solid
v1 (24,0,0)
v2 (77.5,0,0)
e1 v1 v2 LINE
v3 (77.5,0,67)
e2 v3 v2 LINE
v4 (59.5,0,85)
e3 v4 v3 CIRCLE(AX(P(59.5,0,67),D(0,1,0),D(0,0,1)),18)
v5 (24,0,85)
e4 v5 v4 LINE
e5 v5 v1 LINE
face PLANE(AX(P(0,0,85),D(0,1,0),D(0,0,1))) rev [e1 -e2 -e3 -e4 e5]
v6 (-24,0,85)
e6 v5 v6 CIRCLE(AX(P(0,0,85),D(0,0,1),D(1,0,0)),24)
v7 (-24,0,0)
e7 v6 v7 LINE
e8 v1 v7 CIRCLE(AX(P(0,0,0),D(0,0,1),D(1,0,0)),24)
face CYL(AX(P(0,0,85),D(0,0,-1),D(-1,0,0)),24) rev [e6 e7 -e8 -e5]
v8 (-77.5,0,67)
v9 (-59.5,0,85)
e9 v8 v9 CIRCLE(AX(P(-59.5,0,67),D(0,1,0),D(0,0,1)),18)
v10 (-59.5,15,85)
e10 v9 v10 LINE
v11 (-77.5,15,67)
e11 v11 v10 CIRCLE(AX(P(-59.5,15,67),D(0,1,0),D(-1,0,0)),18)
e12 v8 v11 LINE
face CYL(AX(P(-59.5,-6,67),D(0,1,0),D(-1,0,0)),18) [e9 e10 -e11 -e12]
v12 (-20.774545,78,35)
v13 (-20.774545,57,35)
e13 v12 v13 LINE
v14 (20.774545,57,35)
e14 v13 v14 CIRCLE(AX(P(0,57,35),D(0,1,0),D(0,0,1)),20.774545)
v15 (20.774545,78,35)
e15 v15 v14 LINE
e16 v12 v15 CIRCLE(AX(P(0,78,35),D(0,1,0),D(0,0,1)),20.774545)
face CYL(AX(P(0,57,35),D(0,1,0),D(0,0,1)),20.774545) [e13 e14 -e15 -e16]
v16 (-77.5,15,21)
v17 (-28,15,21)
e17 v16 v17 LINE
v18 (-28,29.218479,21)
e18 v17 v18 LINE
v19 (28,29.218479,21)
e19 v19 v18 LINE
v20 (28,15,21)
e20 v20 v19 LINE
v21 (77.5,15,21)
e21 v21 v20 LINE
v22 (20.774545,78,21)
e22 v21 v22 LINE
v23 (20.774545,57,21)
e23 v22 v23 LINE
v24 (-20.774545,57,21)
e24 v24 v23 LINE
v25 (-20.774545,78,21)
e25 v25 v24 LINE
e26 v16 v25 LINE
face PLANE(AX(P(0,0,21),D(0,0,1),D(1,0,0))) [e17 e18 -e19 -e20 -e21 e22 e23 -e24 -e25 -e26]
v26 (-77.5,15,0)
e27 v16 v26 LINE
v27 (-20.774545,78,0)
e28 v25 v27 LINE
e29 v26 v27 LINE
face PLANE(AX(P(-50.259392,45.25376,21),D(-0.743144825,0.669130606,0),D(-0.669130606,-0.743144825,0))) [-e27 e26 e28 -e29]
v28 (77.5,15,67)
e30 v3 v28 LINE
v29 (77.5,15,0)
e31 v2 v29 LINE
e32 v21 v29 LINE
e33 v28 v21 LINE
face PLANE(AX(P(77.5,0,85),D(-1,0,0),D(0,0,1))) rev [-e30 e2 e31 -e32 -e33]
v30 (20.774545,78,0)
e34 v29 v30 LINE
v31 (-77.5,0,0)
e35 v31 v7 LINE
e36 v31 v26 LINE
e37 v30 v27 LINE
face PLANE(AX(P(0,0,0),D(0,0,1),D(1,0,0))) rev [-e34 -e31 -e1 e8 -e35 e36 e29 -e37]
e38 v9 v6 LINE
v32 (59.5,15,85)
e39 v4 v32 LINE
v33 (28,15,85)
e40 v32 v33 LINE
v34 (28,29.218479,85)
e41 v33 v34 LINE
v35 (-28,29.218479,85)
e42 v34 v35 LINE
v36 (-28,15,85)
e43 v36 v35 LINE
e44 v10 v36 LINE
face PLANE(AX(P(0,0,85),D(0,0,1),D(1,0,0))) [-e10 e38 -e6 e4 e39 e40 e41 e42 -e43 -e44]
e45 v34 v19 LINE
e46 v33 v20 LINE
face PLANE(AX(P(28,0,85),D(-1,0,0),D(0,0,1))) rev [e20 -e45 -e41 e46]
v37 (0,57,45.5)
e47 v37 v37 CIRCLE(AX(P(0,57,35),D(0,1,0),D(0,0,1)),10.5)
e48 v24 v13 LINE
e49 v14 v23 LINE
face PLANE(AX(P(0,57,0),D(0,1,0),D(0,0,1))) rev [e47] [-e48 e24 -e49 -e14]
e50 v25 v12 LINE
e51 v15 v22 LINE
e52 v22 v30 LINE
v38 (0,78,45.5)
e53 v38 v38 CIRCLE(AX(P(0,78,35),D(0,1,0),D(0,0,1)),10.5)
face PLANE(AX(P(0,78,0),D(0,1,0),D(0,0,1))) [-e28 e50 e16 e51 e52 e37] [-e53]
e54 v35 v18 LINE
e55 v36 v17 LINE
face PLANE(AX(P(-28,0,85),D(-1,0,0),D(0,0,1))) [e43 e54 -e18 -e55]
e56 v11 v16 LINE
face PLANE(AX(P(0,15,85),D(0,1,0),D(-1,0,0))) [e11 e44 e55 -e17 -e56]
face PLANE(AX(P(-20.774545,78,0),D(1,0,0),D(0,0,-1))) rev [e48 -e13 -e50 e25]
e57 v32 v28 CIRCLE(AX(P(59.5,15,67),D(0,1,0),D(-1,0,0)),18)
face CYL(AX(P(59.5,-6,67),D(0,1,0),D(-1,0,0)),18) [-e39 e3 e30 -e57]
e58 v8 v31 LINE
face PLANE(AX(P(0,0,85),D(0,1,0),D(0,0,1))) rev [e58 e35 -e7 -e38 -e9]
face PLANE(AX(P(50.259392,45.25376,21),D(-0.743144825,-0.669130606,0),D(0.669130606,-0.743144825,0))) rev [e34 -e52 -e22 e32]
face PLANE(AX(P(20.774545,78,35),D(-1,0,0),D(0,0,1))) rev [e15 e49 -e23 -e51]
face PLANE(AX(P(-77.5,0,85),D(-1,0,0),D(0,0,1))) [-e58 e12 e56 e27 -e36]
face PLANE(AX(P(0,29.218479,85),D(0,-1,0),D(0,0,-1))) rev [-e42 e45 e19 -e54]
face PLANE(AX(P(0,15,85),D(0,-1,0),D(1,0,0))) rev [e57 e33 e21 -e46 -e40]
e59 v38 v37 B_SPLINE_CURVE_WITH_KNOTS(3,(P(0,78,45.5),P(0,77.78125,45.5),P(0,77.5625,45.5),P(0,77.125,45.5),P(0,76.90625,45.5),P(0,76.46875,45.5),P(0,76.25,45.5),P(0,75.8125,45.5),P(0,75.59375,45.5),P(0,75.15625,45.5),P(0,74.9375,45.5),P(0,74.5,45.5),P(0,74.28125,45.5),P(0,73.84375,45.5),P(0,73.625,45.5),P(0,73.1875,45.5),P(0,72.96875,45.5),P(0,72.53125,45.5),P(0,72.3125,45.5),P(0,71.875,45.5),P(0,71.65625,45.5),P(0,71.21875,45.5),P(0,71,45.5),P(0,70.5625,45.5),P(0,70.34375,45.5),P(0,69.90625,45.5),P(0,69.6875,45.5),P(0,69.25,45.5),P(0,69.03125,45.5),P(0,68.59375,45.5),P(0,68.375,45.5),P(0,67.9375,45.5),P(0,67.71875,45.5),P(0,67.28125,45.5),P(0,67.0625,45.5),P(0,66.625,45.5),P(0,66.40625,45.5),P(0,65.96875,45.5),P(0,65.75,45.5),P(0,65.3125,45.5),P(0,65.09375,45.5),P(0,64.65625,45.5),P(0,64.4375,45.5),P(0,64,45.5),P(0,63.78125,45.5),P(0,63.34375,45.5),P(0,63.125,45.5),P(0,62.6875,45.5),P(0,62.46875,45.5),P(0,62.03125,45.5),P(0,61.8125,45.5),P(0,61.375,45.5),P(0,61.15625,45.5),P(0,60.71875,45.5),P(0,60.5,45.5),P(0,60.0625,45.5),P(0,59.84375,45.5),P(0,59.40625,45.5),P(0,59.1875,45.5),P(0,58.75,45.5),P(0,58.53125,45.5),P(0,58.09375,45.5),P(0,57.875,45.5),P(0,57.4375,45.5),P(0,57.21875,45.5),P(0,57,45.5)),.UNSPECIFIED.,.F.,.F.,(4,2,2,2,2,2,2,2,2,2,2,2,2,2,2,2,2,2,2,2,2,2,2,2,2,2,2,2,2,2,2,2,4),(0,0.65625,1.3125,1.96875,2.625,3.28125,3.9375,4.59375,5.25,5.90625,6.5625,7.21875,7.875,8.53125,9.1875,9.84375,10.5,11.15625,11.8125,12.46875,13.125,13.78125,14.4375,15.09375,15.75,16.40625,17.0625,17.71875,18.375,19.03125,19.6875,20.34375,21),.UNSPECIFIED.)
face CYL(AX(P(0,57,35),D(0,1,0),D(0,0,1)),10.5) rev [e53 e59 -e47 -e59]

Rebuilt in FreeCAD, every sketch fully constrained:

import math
import FreeCAD as App
import Part
import Sketcher
Q = App.Units.Quantity

doc = App.newDocument("Part")
body = doc.addObject("PartDesign::Body", "Body")

# Sketch on XY plane
sketch1 = body.newObject("Sketcher::SketchObject", "Sketch")
sketch1.AttachmentSupport = (doc.getObject("XY_Plane"), [""])
sketch1.MapMode = "FlatFace"
sketch1.addGeometry([
    Part.ArcOfCircle(Part.Circle(App.Vector(0, 0, 0), App.Vector(0, 0, 1), 24), math.radians(90), math.radians(180)),  # 0
    Part.ArcOfCircle(Part.Circle(App.Vector(0, 0, 0), App.Vector(0, 0, 1), 24), math.radians(0), math.radians(90)),  # 1
    Part.LineSegment(App.Vector(24, 0, 0), App.Vector(78, 0, 0)),  # 2
    Part.LineSegment(App.Vector(78, 0, 0), App.Vector(78, 15, 0)),  # 3
    Part.LineSegment(App.Vector(78, 15, 0), App.Vector(28, 15, 0)),  # 4
    Part.LineSegment(App.Vector(28, 15, 0), App.Vector(28, 29, 0)),  # 5
    Part.LineSegment(App.Vector(28, 29, 0), App.Vector(-28, 29, 0)),  # 6
    Part.LineSegment(App.Vector(-28, 29, 0), App.Vector(-28, 15, 0)),  # 7
    Part.LineSegment(App.Vector(-28, 15, 0), App.Vector(-78, 15, 0)),  # 8
    Part.LineSegment(App.Vector(-78, 15, 0), App.Vector(-78, 0, 0)),  # 9
    Part.LineSegment(App.Vector(-78, 0, 0), App.Vector(-24, 0, 0)),  # 10
], False)
sketch1.addConstraint([
    Sketcher.Constraint("Tangent", 0, 1, 1, 2),
    Sketcher.Constraint("Coincident", 1, 1, 2, 1),
    Sketcher.Constraint("Coincident", 2, 2, 3, 1),
    Sketcher.Constraint("Coincident", 3, 2, 4, 1),
    Sketcher.Constraint("Coincident", 4, 2, 5, 1),
    Sketcher.Constraint("Coincident", 5, 2, 6, 1),
    Sketcher.Constraint("Coincident", 6, 2, 7, 1),
    Sketcher.Constraint("Coincident", 7, 2, 8, 1),
    Sketcher.Constraint("Coincident", 8, 2, 9, 1),
    Sketcher.Constraint("Coincident", 9, 2, 10, 1),
    Sketcher.Constraint("Coincident", 10, 2, 0, 2),
    Sketcher.Constraint("Horizontal", 2),
    Sketcher.Constraint("Vertical", 3),
    Sketcher.Constraint("Horizontal", 4),
    Sketcher.Constraint("Vertical", 5),
    Sketcher.Constraint("Horizontal", 6),
    Sketcher.Constraint("Vertical", 7),
    Sketcher.Constraint("Horizontal", 8),
    Sketcher.Constraint("Vertical", 9),
    Sketcher.Constraint("Horizontal", 10),
    Sketcher.Constraint("Coincident", 0, 3, -1, 1),
    Sketcher.Constraint("Equal", 0, 1),
    Sketcher.Constraint("Symmetric", 2, 2, 9, 2, -1, 1),
    Sketcher.Constraint("Symmetric", 4, 2, 7, 2, -2),
    Sketcher.Constraint("PointOnObject", 0, 1, -2),
    Sketcher.Constraint("PointOnObject", 1, 1, -1),
    Sketcher.Constraint("Radius", 0, 24.0),
    Sketcher.Constraint("DistanceX", 6, 2, 6, 1, 56.0),
    Sketcher.Constraint("DistanceY", 3, 1, 3, 2, 15.0),
    Sketcher.Constraint("DistanceX", 2, 1, 2, 2, 53.5),
    Sketcher.Constraint("DistanceY", 5, 1, 5, 2, 14.218479),
])
pad1 = body.newObject("PartDesign::Pad", "Pad")
pad1.Profile = sketch1
pad1.Length = 85

# Sketch on XY plane
sketch2 = body.newObject("Sketcher::SketchObject", "Sketch001")
sketch2.AttachmentSupport = (doc.getObject("XY_Plane"), [""])
sketch2.MapMode = "FlatFace"
sketch2.addGeometry([
    Part.LineSegment(App.Vector(-28, 29, 0), App.Vector(28, 29, 0)),  # 0
    Part.LineSegment(App.Vector(28, 29, 0), App.Vector(28, 15, 0)),  # 1
    Part.LineSegment(App.Vector(28, 15, 0), App.Vector(78, 15, 0)),  # 2
    Part.LineSegment(App.Vector(78, 15, 0), App.Vector(21, 78, 0)),  # 3
    Part.LineSegment(App.Vector(21, 78, 0), App.Vector(21, 57, 0)),  # 4
    Part.LineSegment(App.Vector(21, 57, 0), App.Vector(-21, 57, 0)),  # 5
    Part.LineSegment(App.Vector(-21, 57, 0), App.Vector(-21, 78, 0)),  # 6
    Part.LineSegment(App.Vector(-21, 78, 0), App.Vector(-78, 15, 0)),  # 7
    Part.LineSegment(App.Vector(-78, 15, 0), App.Vector(-28, 15, 0)),  # 8
    Part.LineSegment(App.Vector(-28, 15, 0), App.Vector(-28, 29, 0)),  # 9
], False)
sketch2.addConstraint([
    Sketcher.Constraint("Coincident", 0, 2, 1, 1),
    Sketcher.Constraint("Coincident", 1, 2, 2, 1),
    Sketcher.Constraint("Coincident", 2, 2, 3, 1),
    Sketcher.Constraint("Coincident", 3, 2, 4, 1),
    Sketcher.Constraint("Coincident", 4, 2, 5, 1),
    Sketcher.Constraint("Coincident", 5, 2, 6, 1),
    Sketcher.Constraint("Coincident", 6, 2, 7, 1),
    Sketcher.Constraint("Coincident", 7, 2, 8, 1),
    Sketcher.Constraint("Coincident", 8, 2, 9, 1),
    Sketcher.Constraint("Coincident", 9, 2, 0, 1),
    Sketcher.Constraint("Horizontal", 0),
    Sketcher.Constraint("Vertical", 1),
    Sketcher.Constraint("Horizontal", 2),
    Sketcher.Constraint("Vertical", 4),
    Sketcher.Constraint("Horizontal", 5),
    Sketcher.Constraint("Vertical", 6),
    Sketcher.Constraint("Horizontal", 8),
    Sketcher.Constraint("Vertical", 9),
    Sketcher.Constraint("Symmetric", 3, 2, 6, 2, -2),
    Sketcher.Constraint("Symmetric", 2, 2, 7, 2, -2),
    Sketcher.Constraint("Equal", 2, 8),
    Sketcher.Constraint("DistanceX", 0, 1, 0, 2, 56.0),
    Sketcher.Constraint("DistanceY", 4, 2, 4, 1, 21.0),
    Sketcher.Constraint("Angle", 3, Q("132 deg")),
    Sketcher.Constraint("DistanceX", 2, 1, 2, 2, 49.5),
    Sketcher.Constraint("DistanceY", -1, 1, 1, 2, 15.0),
    Sketcher.Constraint("DistanceY", -1, 1, 3, 2, 78.0),
    Sketcher.Constraint("DistanceY", 1, 2, 1, 1, 14.218479),
])
pad2 = body.newObject("PartDesign::Pad", "Pad001")
pad2.Profile = sketch2
pad2.Length = 21

# Sketch on XZ plane
sketch3 = body.newObject("Sketcher::SketchObject", "Sketch002")
sketch3.AttachmentSupport = (doc.getObject("XZ_Plane"), [""])
sketch3.MapMode = "FlatFace"
sketch3.AttachmentOffset = App.Placement(App.Vector(0, 0, -15), App.Rotation())
sketch3.addGeometry([
    Part.ArcOfCircle(Part.Circle(App.Vector(59, 67, 0), App.Vector(0, 0, 1), 18), math.radians(0), math.radians(90)),
    Part.LineSegment(App.Vector(60, 85, 0), App.Vector(78, 85, 0)),
    Part.LineSegment(App.Vector(78, 85, 0), App.Vector(78, 67, 0)),
], False)
sketch3.addConstraint([
    Sketcher.Constraint("Tangent", 0, 2, 1, 1),
    Sketcher.Constraint("Coincident", 1, 2, 2, 1),
    Sketcher.Constraint("Tangent", 2, 2, 0, 1),
    Sketcher.Constraint("Horizontal", 1),
    Sketcher.Constraint("Vertical", 2),
    Sketcher.Constraint("Radius", 0, 18.0),
    Sketcher.Constraint("DistanceY", -1, 1, 0, 3, 67.0),
    Sketcher.Constraint("DistanceX", -1, 1, 0, 3, 59.5),
])
pocket1 = body.newObject("PartDesign::Pocket", "Pocket")
pocket1.Profile = sketch3
pocket1.Length = 21
pocket1.Reversed = True

# Sketch on XZ plane
sketch4 = body.newObject("Sketcher::SketchObject", "Sketch003")
sketch4.AttachmentSupport = (doc.getObject("XZ_Plane"), [""])
sketch4.MapMode = "FlatFace"
sketch4.AttachmentOffset = App.Placement(App.Vector(0, 0, -15), App.Rotation())
sketch4.addGeometry([
    Part.ArcOfCircle(Part.Circle(App.Vector(-59, 67, 0), App.Vector(0, 0, 1), 18), math.radians(90), math.radians(180)),
    Part.LineSegment(App.Vector(-78, 67, 0), App.Vector(-78, 85, 0)),
    Part.LineSegment(App.Vector(-78, 85, 0), App.Vector(-60, 85, 0)),
], False)
sketch4.addConstraint([
    Sketcher.Constraint("Tangent", 0, 2, 1, 1),
    Sketcher.Constraint("Coincident", 1, 2, 2, 1),
    Sketcher.Constraint("Tangent", 2, 2, 0, 1),
    Sketcher.Constraint("Vertical", 1),
    Sketcher.Constraint("Horizontal", 2),
    Sketcher.Constraint("Radius", 0, 18.0),
    Sketcher.Constraint("DistanceY", -1, 1, 0, 3, 67.0),
    Sketcher.Constraint("DistanceX", 0, 3, -1, 1, 59.5),
])
pocket2 = body.newObject("PartDesign::Pocket", "Pocket001")
pocket2.Profile = sketch4
pocket2.Length = 21
pocket2.Reversed = True

# Sketch on XZ plane
sketch5 = body.newObject("Sketcher::SketchObject", "Sketch004")
sketch5.AttachmentSupport = (doc.getObject("XZ_Plane"), [""])
sketch5.MapMode = "FlatFace"
sketch5.AttachmentOffset = App.Placement(App.Vector(0, 0, -57), App.Rotation())
sketch5.addGeometry([
    Part.LineSegment(App.Vector(-21, 0, 0), App.Vector(-21, 35, 0)),
    Part.LineSegment(App.Vector(-21, 35, 0), App.Vector(21, 35, 0)),
    Part.LineSegment(App.Vector(21, 35, 0), App.Vector(21, 0, 0)),
    Part.LineSegment(App.Vector(21, 0, 0), App.Vector(-21, 0, 0)),
], False)
sketch5.addConstraint([
    Sketcher.Constraint("Coincident", 0, 2, 1, 1),
    Sketcher.Constraint("Coincident", 1, 2, 2, 1),
    Sketcher.Constraint("Coincident", 2, 2, 3, 1),
    Sketcher.Constraint("Coincident", 3, 2, 0, 1),
    Sketcher.Constraint("Vertical", 0),
    Sketcher.Constraint("Horizontal", 1),
    Sketcher.Constraint("Vertical", 2),
    Sketcher.Constraint("Horizontal", 3),
    Sketcher.Constraint("Symmetric", 2, 2, 3, 2, -1, 1),
    Sketcher.Constraint("DistanceY", 0, 1, 0, 2, 35.0),
    Sketcher.Constraint("DistanceX", 1, 1, 1, 2, 41.54909),
])
pad3 = body.newObject("PartDesign::Pad", "Pad002")
pad3.Profile = sketch5
pad3.Length = 21
pad3.Reversed = True

# Sketch on XZ plane
sketch6 = body.newObject("Sketcher::SketchObject", "Sketch005")
sketch6.AttachmentSupport = (doc.getObject("XZ_Plane"), [""])
sketch6.MapMode = "FlatFace"
sketch6.AttachmentOffset = App.Placement(App.Vector(0, 0, -78), App.Rotation())
sketch6.addGeometry([
    Part.Circle(App.Vector(0, 35, 0), App.Vector(0, 0, 1), 21),
    Part.Circle(App.Vector(0, 35, 0), App.Vector(0, 0, 1), 10),
], False)
sketch6.addConstraint([
    Sketcher.Constraint("Coincident", 1, 3, 0, 3),
    Sketcher.Constraint("PointOnObject", 0, 3, -2),
    Sketcher.Constraint("Diameter", 1, 21.0),
    Sketcher.Constraint("DistanceY", -1, 1, 0, 3, 35.0),
    Sketcher.Constraint("Diameter", 0, 41.54909),
])
pad4 = body.newObject("PartDesign::Pad", "Pad003")
pad4.Profile = sketch6
pad4.Length = 21

# Sketch on XZ plane
sketch7 = body.newObject("Sketcher::SketchObject", "Sketch006")
sketch7.AttachmentSupport = (doc.getObject("XZ_Plane"), [""])
sketch7.MapMode = "FlatFace"
sketch7.AttachmentOffset = App.Placement(App.Vector(0, 0, -78), App.Rotation())
sketch7.addGeometry(Part.Circle(App.Vector(0, 35, 0), App.Vector(0, 0, 1), 10), False)
sketch7.addConstraint([
    Sketcher.Constraint("PointOnObject", 0, 3, -2),
    Sketcher.Constraint("Diameter", 0, 21.0),
    Sketcher.Constraint("DistanceY", -1, 1, 0, 3, 35.0),
])
pocket3 = body.newObject("PartDesign::Pocket", "Pocket002")
pocket3.Profile = sketch7
pocket3.Length = 21
pocket3.Reversed = True

doc.recompute()
